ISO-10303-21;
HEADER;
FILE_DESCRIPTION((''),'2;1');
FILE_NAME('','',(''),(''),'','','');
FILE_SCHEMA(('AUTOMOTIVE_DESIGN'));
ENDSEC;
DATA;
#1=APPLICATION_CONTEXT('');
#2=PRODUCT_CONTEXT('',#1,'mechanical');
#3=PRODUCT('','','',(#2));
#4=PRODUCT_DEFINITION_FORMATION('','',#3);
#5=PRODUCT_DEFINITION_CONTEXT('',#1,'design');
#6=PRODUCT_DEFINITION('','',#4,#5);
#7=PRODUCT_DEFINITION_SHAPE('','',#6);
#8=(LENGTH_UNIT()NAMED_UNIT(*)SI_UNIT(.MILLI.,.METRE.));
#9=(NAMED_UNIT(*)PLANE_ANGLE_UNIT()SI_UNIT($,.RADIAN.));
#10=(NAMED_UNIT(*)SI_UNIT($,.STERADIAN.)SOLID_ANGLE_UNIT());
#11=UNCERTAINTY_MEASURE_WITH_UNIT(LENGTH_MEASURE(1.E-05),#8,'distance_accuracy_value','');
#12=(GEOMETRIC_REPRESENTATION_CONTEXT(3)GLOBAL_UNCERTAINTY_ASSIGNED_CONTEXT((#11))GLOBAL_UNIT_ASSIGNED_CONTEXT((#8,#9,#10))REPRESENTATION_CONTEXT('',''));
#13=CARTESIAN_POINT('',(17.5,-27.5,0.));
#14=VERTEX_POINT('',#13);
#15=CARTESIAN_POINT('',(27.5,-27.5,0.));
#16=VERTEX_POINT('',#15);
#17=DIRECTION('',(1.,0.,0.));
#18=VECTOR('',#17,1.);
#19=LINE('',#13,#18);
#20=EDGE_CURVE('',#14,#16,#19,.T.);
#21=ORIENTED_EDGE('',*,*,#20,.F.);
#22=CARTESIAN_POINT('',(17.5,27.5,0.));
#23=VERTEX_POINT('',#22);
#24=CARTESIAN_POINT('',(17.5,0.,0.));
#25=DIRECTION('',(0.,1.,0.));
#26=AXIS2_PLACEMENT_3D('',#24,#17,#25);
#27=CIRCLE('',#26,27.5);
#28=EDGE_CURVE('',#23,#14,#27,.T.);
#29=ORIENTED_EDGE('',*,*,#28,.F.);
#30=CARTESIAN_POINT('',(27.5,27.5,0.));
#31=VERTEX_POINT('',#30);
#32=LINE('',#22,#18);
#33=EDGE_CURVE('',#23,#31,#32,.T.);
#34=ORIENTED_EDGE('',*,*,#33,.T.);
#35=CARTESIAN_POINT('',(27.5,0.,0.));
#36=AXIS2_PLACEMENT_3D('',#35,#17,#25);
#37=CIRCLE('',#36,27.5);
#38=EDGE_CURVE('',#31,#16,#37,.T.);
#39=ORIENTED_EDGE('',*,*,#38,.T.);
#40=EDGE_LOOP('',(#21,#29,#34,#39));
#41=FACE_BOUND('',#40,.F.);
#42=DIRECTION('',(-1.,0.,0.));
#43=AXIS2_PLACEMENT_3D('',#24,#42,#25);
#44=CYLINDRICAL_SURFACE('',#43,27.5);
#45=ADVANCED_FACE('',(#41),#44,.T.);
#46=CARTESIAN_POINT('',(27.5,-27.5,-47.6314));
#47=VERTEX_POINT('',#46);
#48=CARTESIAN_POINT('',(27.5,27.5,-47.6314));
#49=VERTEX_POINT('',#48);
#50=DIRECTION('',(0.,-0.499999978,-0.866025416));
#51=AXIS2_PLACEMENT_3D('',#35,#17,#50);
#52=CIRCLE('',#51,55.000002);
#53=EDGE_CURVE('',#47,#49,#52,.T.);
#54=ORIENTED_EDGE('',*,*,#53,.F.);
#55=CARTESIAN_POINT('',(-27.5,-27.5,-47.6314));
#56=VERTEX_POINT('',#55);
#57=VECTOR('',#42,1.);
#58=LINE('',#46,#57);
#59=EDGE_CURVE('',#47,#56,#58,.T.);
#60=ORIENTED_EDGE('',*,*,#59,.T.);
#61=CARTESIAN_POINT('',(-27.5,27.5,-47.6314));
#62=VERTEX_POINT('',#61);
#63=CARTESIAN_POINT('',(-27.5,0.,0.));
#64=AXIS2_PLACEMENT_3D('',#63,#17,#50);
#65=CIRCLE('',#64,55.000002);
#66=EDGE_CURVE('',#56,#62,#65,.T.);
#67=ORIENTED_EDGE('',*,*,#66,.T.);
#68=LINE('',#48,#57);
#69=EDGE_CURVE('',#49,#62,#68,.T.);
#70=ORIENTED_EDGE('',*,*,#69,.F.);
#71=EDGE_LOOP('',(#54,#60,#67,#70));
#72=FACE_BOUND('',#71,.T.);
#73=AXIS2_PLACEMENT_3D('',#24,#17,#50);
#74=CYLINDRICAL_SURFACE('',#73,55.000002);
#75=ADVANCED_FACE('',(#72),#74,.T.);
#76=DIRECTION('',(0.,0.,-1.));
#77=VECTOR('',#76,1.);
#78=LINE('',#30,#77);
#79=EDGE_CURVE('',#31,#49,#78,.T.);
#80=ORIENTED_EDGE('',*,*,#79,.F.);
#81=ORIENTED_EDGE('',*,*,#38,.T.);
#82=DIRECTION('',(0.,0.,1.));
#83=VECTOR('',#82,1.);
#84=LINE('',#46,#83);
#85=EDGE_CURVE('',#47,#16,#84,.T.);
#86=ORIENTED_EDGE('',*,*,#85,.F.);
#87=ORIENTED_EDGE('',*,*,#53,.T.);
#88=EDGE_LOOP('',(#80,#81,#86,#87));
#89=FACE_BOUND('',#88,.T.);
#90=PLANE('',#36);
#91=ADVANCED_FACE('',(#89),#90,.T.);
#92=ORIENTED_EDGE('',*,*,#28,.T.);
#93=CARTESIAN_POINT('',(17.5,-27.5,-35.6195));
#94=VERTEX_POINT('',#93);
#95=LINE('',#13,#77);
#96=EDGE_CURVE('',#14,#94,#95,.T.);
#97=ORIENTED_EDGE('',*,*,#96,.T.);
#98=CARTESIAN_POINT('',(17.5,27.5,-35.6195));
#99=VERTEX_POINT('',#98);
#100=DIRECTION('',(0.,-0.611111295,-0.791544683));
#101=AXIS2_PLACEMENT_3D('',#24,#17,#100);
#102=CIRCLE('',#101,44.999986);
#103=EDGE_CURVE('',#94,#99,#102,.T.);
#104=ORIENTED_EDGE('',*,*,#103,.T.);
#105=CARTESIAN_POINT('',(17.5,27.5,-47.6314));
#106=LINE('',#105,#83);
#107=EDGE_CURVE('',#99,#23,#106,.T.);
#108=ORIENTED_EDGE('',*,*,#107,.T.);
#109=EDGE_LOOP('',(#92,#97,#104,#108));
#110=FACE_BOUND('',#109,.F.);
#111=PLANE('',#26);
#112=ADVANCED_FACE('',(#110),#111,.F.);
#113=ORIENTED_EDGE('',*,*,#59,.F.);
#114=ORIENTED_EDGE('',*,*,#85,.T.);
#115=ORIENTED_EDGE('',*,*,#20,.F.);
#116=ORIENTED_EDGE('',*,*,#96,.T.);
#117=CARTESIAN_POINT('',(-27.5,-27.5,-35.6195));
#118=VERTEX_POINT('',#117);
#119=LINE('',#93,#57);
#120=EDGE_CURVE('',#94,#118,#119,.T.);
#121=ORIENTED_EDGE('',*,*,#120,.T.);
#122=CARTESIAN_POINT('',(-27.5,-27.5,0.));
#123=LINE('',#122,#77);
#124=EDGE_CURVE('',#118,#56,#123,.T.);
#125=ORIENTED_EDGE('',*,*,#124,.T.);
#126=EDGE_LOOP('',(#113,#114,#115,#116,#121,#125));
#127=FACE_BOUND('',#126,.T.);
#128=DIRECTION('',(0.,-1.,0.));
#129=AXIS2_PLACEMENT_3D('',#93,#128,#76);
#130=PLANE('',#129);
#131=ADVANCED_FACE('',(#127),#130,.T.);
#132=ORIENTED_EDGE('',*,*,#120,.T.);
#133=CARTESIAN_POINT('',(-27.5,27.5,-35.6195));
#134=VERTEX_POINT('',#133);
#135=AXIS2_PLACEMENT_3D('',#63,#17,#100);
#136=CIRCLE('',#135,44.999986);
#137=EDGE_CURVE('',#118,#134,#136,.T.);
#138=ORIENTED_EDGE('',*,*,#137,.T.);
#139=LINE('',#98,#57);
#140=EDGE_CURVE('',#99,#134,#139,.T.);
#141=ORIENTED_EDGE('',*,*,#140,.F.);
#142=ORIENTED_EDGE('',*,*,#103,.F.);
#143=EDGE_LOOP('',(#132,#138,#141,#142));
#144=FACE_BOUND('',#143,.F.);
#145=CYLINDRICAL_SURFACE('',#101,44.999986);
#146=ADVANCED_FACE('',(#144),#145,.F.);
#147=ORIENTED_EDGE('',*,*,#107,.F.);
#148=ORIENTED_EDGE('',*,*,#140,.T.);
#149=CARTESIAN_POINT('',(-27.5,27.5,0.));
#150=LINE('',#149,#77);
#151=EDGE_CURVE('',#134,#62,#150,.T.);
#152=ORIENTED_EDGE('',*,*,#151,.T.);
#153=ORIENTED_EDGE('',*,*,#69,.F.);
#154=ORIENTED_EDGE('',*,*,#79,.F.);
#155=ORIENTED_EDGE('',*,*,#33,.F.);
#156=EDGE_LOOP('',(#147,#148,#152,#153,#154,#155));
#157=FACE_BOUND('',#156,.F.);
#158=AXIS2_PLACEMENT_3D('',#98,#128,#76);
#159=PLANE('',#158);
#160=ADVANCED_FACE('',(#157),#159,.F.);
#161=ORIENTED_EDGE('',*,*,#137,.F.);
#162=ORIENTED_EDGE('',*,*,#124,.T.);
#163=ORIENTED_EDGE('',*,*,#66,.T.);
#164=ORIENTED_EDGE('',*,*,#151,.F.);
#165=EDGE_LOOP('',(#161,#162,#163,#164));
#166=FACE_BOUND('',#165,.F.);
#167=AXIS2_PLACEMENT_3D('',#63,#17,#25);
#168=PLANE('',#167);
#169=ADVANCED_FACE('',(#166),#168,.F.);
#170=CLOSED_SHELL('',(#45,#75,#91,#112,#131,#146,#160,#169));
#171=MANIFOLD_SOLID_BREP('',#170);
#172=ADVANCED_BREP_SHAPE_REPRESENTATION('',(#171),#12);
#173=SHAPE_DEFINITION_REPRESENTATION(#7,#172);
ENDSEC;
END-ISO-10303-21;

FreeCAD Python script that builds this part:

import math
import FreeCAD as App
import Part
import Sketcher
from FreeCAD import Vector

doc = App.newDocument("Part")
body = doc.addObject("PartDesign::Body", "Body")

sketch1 = body.newObject("Sketcher::SketchObject", "Sketch")
sketch1.AttachmentSupport = (doc.getObject("YZ_Plane"), [""])
sketch1.MapMode = "FlatFace"
sketch1.AttachmentOffset = App.Placement(Vector(0, 0, 17.5), App.Rotation())
sketch1.addGeometry(Part.ArcOfCircle(Part.Circle(Vector(0, 0, 0), Vector(0, 0, 1), 28), math.radians(0), math.radians(180)), False)
sketch1.addGeometry(Part.LineSegment(Vector(-28, 0, 0), Vector(-28, -48, 0)), False)
sketch1.addGeometry(Part.ArcOfCircle(Part.Circle(Vector(0, 0, 0), Vector(0, 0, 1), 55), math.radians(-120), math.radians(-60)), False)
sketch1.addGeometry(Part.LineSegment(Vector(28, -48, 0), Vector(28, 0, 0)), False)
sketch1.addConstraint(Sketcher.Constraint("Tangent", 0, 2, 1, 1))
sketch1.addConstraint(Sketcher.Constraint("Coincident", 1, 2, 2, 1))
sketch1.addConstraint(Sketcher.Constraint("Coincident", 2, 2, 3, 1))
sketch1.addConstraint(Sketcher.Constraint("Tangent", 3, 2, 0, 1))
sketch1.addConstraint(Sketcher.Constraint("Vertical", 1))
sketch1.addConstraint(Sketcher.Constraint("Vertical", 3))
sketch1.addConstraint(Sketcher.Constraint("Coincident", 0, 3, -1, 1))
sketch1.addConstraint(Sketcher.Constraint("Coincident", 2, 3, -1, 1))
sketch1.addConstraint(Sketcher.Constraint("Radius", 2, 55.0))
sketch1.addConstraint(Sketcher.Constraint("Radius", 0, 27.5))
pad1 = body.newObject("PartDesign::Pad", "Pad")
pad1.Profile = sketch1
pad1.Length = 10

sketch2 = body.newObject("Sketcher::SketchObject", "Sketch001")
sketch2.AttachmentSupport = (doc.getObject("YZ_Plane"), [""])
sketch2.MapMode = "FlatFace"
sketch2.AttachmentOffset = App.Placement(Vector(0, 0, 17.5), App.Rotation())
sketch2.addGeometry(Part.LineSegment(Vector(28, -48, 0), Vector(28, -36, 0)), False)
sketch2.addGeometry(Part.ArcOfCircle(Part.Circle(Vector(0, 0, 0), Vector(0, 0, 1), 45), math.radians(-128), math.radians(-52)), False)
sketch2.addGeometry(Part.LineSegment(Vector(-28, -36, 0), Vector(-28, -48, 0)), False)
sketch2.addGeometry(Part.ArcOfCircle(Part.Circle(Vector(0, 0, 0), Vector(0, 0, 1), 55), math.radians(-120), math.radians(-60)), False)
sketch2.addConstraint(Sketcher.Constraint("Coincident", 0, 2, 1, 2))
sketch2.addConstraint(Sketcher.Constraint("Coincident", 1, 1, 2, 1))
sketch2.addConstraint(Sketcher.Constraint("Coincident", 2, 2, 3, 1))
sketch2.addConstraint(Sketcher.Constraint("Coincident", 3, 2, 0, 1))
sketch2.addConstraint(Sketcher.Constraint("Vertical", 0))
sketch2.addConstraint(Sketcher.Constraint("Vertical", 2))
sketch2.addConstraint(Sketcher.Constraint("Coincident", 1, 3, -1, 1))
sketch2.addConstraint(Sketcher.Constraint("Coincident", 3, 3, -1, 1))
sketch2.addConstraint(Sketcher.Constraint("Horizontal", 0, 2, 1, 1))
sketch2.addConstraint(Sketcher.Constraint("Radius", 1, 45.0))
sketch2.addConstraint(Sketcher.Constraint("Radius", 3, 55.0))
sketch2.addConstraint(Sketcher.Constraint("DistanceX", 1, 1, 0, 2, 55.0))
pad2 = body.newObject("PartDesign::Pad", "Pad001")
pad2.Profile = sketch2
pad2.Length = 45
pad2.Reversed = True

doc.recompute()
